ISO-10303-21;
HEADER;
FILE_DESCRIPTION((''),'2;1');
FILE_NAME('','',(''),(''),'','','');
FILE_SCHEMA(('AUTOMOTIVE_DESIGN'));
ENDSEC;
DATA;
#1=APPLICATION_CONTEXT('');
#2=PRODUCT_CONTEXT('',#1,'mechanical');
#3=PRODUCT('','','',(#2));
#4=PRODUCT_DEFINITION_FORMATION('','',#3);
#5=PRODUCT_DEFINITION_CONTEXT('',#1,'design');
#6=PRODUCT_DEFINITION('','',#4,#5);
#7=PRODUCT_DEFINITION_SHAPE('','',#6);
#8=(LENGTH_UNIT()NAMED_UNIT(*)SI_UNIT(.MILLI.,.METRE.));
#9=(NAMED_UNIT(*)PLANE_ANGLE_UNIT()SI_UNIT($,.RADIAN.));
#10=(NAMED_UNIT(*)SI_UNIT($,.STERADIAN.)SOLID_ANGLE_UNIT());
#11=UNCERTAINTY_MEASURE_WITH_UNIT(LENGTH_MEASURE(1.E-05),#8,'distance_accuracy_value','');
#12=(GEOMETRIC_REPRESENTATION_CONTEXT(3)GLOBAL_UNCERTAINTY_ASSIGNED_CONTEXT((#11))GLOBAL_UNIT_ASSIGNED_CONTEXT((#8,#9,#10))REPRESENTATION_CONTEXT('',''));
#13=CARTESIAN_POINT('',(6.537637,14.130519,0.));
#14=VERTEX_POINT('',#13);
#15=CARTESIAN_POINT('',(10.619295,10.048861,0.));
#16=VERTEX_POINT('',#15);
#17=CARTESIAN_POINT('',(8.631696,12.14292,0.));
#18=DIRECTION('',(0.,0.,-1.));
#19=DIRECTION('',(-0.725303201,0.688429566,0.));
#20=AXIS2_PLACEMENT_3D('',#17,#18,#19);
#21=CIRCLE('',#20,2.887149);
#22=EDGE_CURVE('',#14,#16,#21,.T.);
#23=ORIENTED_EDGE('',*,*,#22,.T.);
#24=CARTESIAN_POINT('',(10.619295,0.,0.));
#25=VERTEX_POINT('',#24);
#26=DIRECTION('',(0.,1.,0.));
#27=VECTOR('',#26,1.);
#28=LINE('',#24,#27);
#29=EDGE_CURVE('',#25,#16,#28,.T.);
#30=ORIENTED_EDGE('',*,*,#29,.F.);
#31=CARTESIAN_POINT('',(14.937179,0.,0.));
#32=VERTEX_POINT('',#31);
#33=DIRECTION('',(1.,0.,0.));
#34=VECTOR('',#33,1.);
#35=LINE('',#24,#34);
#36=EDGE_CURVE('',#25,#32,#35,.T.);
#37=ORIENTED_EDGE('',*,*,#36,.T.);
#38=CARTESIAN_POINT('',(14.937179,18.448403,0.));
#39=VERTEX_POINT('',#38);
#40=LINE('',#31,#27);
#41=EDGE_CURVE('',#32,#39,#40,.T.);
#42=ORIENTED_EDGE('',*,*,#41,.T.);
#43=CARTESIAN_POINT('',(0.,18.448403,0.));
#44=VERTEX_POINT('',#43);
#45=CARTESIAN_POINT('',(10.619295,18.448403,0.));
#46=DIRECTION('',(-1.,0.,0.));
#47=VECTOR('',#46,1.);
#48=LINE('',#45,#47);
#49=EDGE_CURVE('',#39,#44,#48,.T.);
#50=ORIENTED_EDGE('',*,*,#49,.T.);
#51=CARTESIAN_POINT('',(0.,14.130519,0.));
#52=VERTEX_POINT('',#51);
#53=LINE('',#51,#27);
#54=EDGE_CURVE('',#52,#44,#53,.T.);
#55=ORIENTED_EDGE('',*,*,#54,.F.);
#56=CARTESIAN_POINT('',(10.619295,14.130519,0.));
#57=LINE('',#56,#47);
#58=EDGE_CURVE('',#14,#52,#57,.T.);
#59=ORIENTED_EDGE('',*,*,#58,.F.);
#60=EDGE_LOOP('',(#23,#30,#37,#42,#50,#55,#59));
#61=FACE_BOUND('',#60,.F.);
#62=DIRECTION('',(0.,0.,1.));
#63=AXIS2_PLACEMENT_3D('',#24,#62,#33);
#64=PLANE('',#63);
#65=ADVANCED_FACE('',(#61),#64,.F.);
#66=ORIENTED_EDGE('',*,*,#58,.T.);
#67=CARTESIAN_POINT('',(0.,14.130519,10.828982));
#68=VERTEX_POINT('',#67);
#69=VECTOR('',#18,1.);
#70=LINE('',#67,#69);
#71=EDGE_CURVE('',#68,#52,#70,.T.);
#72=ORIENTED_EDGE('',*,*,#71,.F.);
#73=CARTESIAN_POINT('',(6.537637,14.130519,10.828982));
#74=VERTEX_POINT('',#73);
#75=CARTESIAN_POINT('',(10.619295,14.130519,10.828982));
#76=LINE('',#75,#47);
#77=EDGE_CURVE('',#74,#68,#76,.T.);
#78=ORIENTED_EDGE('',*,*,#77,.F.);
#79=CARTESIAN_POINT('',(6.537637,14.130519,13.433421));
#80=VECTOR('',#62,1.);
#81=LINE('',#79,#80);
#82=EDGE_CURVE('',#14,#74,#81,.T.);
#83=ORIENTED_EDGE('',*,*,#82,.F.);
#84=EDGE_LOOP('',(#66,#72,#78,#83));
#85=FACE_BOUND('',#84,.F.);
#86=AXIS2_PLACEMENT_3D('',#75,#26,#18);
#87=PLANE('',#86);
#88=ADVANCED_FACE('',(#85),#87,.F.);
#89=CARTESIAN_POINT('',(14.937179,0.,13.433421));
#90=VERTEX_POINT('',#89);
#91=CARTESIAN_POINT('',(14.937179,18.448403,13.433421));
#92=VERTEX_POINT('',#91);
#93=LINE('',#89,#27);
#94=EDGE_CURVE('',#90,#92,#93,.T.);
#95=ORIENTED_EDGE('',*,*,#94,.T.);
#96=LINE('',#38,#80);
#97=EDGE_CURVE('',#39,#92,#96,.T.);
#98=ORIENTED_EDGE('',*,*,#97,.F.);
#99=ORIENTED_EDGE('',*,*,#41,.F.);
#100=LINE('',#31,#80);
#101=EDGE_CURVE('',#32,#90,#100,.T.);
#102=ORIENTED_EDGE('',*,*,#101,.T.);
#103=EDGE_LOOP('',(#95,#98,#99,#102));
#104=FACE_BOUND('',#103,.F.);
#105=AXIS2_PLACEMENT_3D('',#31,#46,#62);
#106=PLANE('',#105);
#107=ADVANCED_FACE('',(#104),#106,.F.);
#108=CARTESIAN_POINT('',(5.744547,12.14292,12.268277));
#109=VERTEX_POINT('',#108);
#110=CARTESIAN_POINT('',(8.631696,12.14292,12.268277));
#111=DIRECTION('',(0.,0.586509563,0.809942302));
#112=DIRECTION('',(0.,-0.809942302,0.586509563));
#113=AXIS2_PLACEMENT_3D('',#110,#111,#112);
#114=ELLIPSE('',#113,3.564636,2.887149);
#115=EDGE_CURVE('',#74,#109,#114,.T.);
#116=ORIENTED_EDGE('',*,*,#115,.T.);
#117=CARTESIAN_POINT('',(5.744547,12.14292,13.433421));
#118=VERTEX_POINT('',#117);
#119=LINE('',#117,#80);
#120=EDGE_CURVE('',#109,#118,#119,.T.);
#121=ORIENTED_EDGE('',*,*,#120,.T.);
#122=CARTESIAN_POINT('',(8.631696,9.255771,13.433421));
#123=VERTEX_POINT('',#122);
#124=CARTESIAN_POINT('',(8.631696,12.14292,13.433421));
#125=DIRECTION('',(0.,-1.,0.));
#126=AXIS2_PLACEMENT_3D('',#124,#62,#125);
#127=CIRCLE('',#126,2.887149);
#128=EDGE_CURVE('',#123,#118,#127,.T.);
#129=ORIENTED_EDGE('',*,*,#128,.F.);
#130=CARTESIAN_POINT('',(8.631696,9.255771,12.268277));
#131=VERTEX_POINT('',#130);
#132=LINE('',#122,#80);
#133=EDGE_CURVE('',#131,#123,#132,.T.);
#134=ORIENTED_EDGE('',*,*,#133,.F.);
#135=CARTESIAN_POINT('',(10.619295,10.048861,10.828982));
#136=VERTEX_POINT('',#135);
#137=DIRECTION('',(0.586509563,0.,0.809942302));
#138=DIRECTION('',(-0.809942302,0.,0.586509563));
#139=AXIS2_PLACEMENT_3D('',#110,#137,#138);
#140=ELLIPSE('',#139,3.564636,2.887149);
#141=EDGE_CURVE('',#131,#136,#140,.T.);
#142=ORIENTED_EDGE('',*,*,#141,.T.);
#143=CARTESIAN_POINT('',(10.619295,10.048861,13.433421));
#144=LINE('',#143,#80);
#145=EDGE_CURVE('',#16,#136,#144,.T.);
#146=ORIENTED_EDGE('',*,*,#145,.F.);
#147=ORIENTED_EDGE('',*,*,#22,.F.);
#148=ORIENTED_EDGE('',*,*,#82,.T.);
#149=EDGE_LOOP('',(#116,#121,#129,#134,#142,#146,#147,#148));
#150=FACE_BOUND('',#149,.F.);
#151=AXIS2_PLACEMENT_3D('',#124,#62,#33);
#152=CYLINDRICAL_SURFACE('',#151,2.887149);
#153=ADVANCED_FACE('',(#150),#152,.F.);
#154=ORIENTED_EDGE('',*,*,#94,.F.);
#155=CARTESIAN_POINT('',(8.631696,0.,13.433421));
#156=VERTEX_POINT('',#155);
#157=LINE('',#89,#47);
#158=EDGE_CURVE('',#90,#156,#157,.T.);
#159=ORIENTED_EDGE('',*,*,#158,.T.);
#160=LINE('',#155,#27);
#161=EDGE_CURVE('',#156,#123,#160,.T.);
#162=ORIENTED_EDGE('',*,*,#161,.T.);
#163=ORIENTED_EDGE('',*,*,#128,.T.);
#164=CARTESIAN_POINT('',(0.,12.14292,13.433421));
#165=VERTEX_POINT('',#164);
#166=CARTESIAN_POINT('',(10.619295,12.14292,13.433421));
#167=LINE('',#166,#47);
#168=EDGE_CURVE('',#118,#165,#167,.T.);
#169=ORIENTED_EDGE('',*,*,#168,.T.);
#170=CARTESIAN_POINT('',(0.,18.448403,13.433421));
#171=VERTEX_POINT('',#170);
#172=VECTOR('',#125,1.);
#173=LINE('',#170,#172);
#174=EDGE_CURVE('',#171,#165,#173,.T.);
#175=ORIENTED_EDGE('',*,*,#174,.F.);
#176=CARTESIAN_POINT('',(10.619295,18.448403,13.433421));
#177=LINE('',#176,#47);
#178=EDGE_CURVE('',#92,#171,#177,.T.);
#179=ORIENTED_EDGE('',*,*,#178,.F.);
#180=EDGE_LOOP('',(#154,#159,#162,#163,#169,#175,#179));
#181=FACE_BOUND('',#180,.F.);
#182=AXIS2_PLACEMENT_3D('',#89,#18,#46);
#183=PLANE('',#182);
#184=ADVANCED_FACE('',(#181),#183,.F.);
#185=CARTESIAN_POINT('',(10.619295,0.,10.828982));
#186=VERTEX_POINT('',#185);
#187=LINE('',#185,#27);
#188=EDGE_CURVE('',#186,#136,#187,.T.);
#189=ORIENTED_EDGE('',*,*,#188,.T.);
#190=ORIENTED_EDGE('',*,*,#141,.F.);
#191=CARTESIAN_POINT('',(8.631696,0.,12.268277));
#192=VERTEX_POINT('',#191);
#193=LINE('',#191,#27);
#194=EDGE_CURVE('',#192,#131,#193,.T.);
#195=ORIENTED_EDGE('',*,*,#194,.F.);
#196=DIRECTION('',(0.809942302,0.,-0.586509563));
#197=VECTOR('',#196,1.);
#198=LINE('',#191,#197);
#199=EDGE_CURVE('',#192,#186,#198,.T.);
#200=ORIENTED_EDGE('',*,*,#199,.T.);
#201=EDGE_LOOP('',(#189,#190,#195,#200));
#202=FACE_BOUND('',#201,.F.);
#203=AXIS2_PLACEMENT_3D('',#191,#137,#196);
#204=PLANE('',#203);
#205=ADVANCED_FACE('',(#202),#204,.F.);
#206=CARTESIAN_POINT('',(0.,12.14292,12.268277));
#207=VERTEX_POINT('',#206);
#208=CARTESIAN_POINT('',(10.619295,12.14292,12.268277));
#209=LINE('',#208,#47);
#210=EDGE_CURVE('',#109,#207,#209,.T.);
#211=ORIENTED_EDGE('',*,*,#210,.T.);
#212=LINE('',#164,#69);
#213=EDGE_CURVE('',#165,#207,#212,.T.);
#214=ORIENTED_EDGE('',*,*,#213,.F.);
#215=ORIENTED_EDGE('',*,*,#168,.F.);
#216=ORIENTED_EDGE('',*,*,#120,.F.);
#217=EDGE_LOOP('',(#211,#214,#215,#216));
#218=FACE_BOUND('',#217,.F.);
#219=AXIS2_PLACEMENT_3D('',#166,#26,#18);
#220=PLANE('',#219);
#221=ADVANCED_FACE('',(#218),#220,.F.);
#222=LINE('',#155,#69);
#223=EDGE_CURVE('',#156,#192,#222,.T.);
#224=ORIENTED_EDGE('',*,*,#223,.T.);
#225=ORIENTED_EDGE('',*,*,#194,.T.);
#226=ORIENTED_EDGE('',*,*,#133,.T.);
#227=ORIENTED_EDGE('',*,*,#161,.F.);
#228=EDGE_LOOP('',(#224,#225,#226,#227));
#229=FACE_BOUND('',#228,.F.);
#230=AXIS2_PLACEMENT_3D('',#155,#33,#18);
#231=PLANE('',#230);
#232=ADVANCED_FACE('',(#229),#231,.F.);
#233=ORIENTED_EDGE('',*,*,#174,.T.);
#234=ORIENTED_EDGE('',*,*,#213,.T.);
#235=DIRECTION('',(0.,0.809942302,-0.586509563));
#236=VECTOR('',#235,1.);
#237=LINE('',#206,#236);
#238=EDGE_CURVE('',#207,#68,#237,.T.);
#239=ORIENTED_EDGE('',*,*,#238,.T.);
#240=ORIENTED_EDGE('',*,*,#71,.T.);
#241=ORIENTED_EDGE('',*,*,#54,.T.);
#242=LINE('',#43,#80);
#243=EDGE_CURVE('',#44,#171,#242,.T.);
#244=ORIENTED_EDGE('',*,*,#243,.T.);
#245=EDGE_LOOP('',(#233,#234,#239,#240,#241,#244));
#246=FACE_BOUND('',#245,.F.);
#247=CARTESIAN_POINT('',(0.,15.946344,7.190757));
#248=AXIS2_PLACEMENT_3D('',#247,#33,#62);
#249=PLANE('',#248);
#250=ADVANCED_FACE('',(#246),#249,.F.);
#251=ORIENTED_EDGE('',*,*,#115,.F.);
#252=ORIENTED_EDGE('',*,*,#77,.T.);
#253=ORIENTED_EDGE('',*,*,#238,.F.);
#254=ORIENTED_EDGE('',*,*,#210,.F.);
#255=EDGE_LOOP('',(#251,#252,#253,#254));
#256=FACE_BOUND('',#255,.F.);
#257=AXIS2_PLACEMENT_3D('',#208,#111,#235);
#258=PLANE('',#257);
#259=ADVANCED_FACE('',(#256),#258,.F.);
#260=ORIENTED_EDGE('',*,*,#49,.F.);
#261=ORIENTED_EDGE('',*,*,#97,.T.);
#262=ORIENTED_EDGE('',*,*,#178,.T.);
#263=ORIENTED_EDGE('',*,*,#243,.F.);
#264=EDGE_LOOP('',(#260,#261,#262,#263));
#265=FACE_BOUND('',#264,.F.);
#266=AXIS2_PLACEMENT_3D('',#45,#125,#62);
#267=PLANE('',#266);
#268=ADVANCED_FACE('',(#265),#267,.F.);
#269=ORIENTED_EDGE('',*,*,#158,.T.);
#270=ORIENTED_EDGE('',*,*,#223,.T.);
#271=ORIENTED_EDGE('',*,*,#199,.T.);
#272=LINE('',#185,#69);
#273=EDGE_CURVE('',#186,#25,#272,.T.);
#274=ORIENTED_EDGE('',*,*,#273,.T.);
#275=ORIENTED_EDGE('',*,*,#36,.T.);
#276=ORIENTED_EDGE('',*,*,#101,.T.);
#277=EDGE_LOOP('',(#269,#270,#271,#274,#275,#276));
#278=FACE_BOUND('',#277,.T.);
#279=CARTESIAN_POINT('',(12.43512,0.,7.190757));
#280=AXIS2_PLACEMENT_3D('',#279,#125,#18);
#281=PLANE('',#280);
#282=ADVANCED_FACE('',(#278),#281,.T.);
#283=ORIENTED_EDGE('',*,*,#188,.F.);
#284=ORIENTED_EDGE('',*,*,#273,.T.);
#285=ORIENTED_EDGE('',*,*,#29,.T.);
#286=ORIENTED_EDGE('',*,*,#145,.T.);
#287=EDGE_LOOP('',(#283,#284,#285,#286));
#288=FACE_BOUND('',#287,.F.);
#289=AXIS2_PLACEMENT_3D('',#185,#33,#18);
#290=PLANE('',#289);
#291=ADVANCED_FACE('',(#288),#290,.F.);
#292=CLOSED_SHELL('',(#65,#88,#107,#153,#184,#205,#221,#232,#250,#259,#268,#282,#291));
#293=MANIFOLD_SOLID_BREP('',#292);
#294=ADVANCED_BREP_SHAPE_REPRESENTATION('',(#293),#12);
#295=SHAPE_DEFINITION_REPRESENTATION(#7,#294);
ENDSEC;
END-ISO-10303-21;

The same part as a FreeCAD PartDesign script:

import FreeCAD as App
import Part
import Sketcher

V = App.Vector

doc = App.newDocument("Part")
params = doc.addObject("Spreadsheet::Sheet", "Params")
for row, (alias, value) in enumerate([
    ("pocket1_length", "25 mm"),
], start=1):
    params.set(f"A{row}", alias)
    params.set(f"B{row}", "=" + value)
    params.setAlias(f"B{row}", alias)

body = doc.addObject("PartDesign::Body", "Body")

sketch1 = doc.addObject("Sketcher::SketchObject", "Sketch")
body.addObject(sketch1)
sketch1.AttachmentSupport = (doc.XZ_Plane, [""])
sketch1.MapMode = "FlatFace"
sketch1.addGeometry([
    Part.LineSegment(V(10.6, 10.8, 0), V(10.6, 0, 0)),
    Part.LineSegment(V(10.6, 0, 0), V(14.9, 0, 0)),
    Part.LineSegment(V(14.9, 0, 0), V(14.9, 13.4, 0)),
    Part.LineSegment(V(14.9, 13.4, 0), V(8.6, 13.4, 0)),
    Part.LineSegment(V(8.6, 13.4, 0), V(8.6, 12.3, 0)),
    Part.LineSegment(V(8.6, 12.3, 0), V(10.6, 10.8, 0)),
], False)
sketch1.addConstraint([
    Sketcher.Constraint("Coincident", 0, 2, 1, 1),
    Sketcher.Constraint("Coincident", 1, 2, 2, 1),
    Sketcher.Constraint("Coincident", 2, 2, 3, 1),
    Sketcher.Constraint("Coincident", 3, 2, 4, 1),
    Sketcher.Constraint("Coincident", 4, 2, 5, 1),
    Sketcher.Constraint("Coincident", 5, 2, 0, 1),
    Sketcher.Constraint("Vertical", 0),
    Sketcher.Constraint("Horizontal", 1),
    Sketcher.Constraint("Vertical", 2),
    Sketcher.Constraint("Horizontal", 3),
    Sketcher.Constraint("Vertical", 4),
    Sketcher.Constraint("PointOnObject", 0, 2, -1),
    Sketcher.Constraint("Distance", 5, 2.454001),
    Sketcher.Constraint("DistanceY", 2, 1, 2, 2, 13.433421),
    Sketcher.Constraint("DistanceX", 3, 2, 0, 2, 1.987599),
    Sketcher.Constraint("DistanceX", 1, 1, 1, 2, 4.317884),
    Sketcher.Constraint("DistanceY", 0, 2, 0, 1, 10.828982),
    Sketcher.Constraint("DistanceX", -1, 1, 1, 2, 14.937179),
])

sketch2 = doc.addObject("Sketcher::SketchObject", "Sketch001")
body.addObject(sketch2)
sketch2.AttachmentSupport = (doc.XY_Plane, [""])
sketch2.MapMode = "FlatFace"
sketch2.addGeometry([
    Part.LineSegment(V(11, 0, 0), V(11, 14, 0)),
    Part.LineSegment(V(11, 14, 0), V(0, 14, 0)),
], False)
sketch2.addConstraint([
    Sketcher.Constraint("Coincident", 0, 2, 1, 1),
    Sketcher.Constraint("Vertical", 0),
    Sketcher.Constraint("Horizontal", 1),
    Sketcher.Constraint("PointOnObject", 0, 1, -1),
    Sketcher.Constraint("PointOnObject", 1, 2, -2),
    Sketcher.Constraint("DistanceY", 0, 1, 0, 2, 14.130519),
    Sketcher.Constraint("DistanceX", 1, 2, 1, 1, 10.619295),
])
doc.recompute()

additivepipe = doc.addObject("PartDesign::AdditivePipe", "AdditivePipe")
body.addObject(additivepipe)
additivepipe.Profile = sketch1
additivepipe.Spine = (sketch2, ["Edge1", "Edge2"])
additivepipe.Transition = "Right corner"

sketch3 = doc.addObject("Sketcher::SketchObject", "Sketch002")
body.addObject(sketch3)
sketch3.AttachmentSupport = (doc.XY_Plane, [""])
sketch3.MapMode = "FlatFace"
sketch3.AttachmentOffset = App.Placement(V(0, 0, 13.433421), App.Rotation())
sketch3.addGeometry(Part.Circle(V(8.6, 12.1, 0), V(0, 0, 1), 2.9), False)
sketch3.addConstraint([
    Sketcher.Constraint("Diameter", 0, 5.774298),
    Sketcher.Constraint("DistanceY", -1, 1, 0, 3, 12.14292),
    Sketcher.Constraint("DistanceX", -1, 1, 0, 3, 8.631696),
])
pocket1 = doc.addObject("PartDesign::Pocket", "Pocket")
body.addObject(pocket1)
pocket1.Profile = sketch3
pocket1.setExpression("Length", "Params.pocket1_length")

doc.recompute()
